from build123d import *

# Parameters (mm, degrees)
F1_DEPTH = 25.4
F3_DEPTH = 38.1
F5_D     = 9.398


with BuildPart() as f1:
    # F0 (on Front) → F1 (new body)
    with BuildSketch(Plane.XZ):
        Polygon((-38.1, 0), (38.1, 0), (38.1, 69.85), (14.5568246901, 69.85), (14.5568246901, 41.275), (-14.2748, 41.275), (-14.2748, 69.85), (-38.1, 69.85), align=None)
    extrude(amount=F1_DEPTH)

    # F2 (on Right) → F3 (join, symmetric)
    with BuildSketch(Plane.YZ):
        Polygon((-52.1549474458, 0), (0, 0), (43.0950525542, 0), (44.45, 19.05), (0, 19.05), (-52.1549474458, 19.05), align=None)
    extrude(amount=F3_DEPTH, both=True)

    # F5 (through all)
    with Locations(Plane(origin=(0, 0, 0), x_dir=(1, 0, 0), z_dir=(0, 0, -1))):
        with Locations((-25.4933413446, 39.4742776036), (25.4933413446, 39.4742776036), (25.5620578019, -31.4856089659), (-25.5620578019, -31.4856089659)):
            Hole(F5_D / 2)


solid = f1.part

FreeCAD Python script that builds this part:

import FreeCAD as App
import Part
import Sketcher

V = App.Vector
Q = App.Units.Quantity


def add_polygon(sketch, points):
    """Adds a closed chain of lines whose ends are joined by coincident constraints."""
    first, n = sketch.GeometryCount, len(points)
    for a, b in zip(points, points[1:] + points[:1]):
        sketch.addGeometry(Part.LineSegment(App.Vector(*a, 0), App.Vector(*b, 0)), False)
    for i in range(n):
        sketch.addConstraint(Sketcher.Constraint("Coincident", first + i, 2, first + (i + 1) % n, 1))

doc = App.newDocument("Part")
body = doc.addObject("PartDesign::Body", "Body")

sketch1 = doc.addObject("Sketcher::SketchObject", "Sketch")
body.addObject(sketch1)
sketch1.AttachmentSupport = (doc.XZ_Plane, [""])
sketch1.MapMode = "FlatFace"
add_polygon(sketch1, [(-38, 0), (38, 0), (38, 70), (15, 70), (15, 41), (-14, 41), (-14, 70), (-38, 70)])
sketch1.addConstraint(Sketcher.Constraint("Horizontal", 0))
sketch1.addConstraint(Sketcher.Constraint("Vertical", 1))
sketch1.addConstraint(Sketcher.Constraint("Horizontal", 2))
sketch1.addConstraint(Sketcher.Constraint("Vertical", 3))
sketch1.addConstraint(Sketcher.Constraint("Horizontal", 4))
sketch1.addConstraint(Sketcher.Constraint("Vertical", 5))
sketch1.addConstraint(Sketcher.Constraint("Horizontal", 6))
sketch1.addConstraint(Sketcher.Constraint("Vertical", 7))
sketch1.addConstraint(Sketcher.Constraint("Symmetric", 0, 2, 7, 2, -1, 1))
sketch1.addConstraint(Sketcher.Constraint("Horizontal", 2, 2, 5, 2))
sketch1.addConstraint(Sketcher.Constraint("DistanceX", 0, 1, 0, 2, Q("3 in")))
sketch1.addConstraint(Sketcher.Constraint("DistanceY", 1, 1, 1, 2, Q("2.75 in")))
sketch1.addConstraint(Sketcher.Constraint("DistanceX", 6, 2, 6, 1, Q("0.938 in")))
sketch1.addConstraint(Sketcher.Constraint("DistanceY", 3, 2, 3, 1, Q("1.125 in")))
sketch1.addConstraint(Sketcher.Constraint("DistanceX", 2, 2, 2, 1, 23.543175))
pad1 = doc.addObject("PartDesign::Pad", "Pad")
body.addObject(pad1)
pad1.Profile = sketch1
pad1.Length = Q("1 in")

sketch2 = doc.addObject("Sketcher::SketchObject", "Sketch001")
body.addObject(sketch2)
sketch2.AttachmentSupport = (doc.YZ_Plane, [""])
sketch2.MapMode = "FlatFace"
add_polygon(sketch2, [(-52, 0), (43, 0), (44, 19), (-52, 19)])
sketch2.addConstraint(Sketcher.Constraint("Horizontal", 0))
sketch2.addConstraint(Sketcher.Constraint("Horizontal", 2))
sketch2.addConstraint(Sketcher.Constraint("Vertical", 3))
sketch2.addConstraint(Sketcher.Constraint("PointOnObject", 0, 2, -1))
sketch2.addConstraint(Sketcher.Constraint("DistanceX", 0, 1, 0, 2, Q("3.75 in")))
sketch2.addConstraint(Sketcher.Constraint("DistanceY", 3, 2, 3, 1, Q("0.75 in")))
sketch2.addConstraint(Sketcher.Constraint("DistanceX", -1, 1, 1, 2, Q("1.75 in")))
sketch2.addConstraint(Sketcher.Constraint("DistanceX", 2, 2, 2, 1, 96.604947))
pad2 = doc.addObject("PartDesign::Pad", "Pad001")
body.addObject(pad2)
pad2.Profile = sketch2
pad2.Length = Q("3 in")
pad2.Midplane = True

sketch3 = doc.addObject("Sketcher::SketchObject", "Sketch002")
body.addObject(sketch3)
sketch3.AttachmentSupport = (doc.XY_Plane, [""])
sketch3.MapMode = "FlatFace"
sketch3.addGeometry(Part.Circle(V(-25.5, -39.5, 0), V(0, 0, 1), 4.7), False)
sketch3.addGeometry(Part.Circle(V(25.5, -39.5, 0), V(0, 0, 1), 4.7), False)
sketch3.addGeometry(Part.Circle(V(25.6, 31.5, 0), V(0, 0, 1), 4.7), False)
sketch3.addGeometry(Part.Circle(V(-25.6, 31.5, 0), V(0, 0, 1), 4.7), False)
sketch3.addConstraint(Sketcher.Constraint("Equal", 0, 1))
sketch3.addConstraint(Sketcher.Constraint("Equal", 1, 2))
sketch3.addConstraint(Sketcher.Constraint("Equal", 2, 3))
sketch3.addConstraint(Sketcher.Constraint("Symmetric", 0, 3, 1, 3, -2))
sketch3.addConstraint(Sketcher.Constraint("Symmetric", 2, 3, 3, 3, -2))
sketch3.addConstraint(Sketcher.Constraint("Diameter", 0, Q("0.37 in")))
sketch3.addConstraint(Sketcher.Constraint("DistanceX", 0, 3, 2, 3, 51.055399))
sketch3.addConstraint(Sketcher.Constraint("DistanceX", 0, 3, -1, 1, 25.493341))
sketch3.addConstraint(Sketcher.Constraint("DistanceY", -1, 1, 2, 3, 31.485609))
sketch3.addConstraint(Sketcher.Constraint("DistanceY", 0, 3, -1, 1, 39.474278))
doc.recompute()
hole = doc.addObject("PartDesign::Hole", "Hole")
body.addObject(hole)
hole.Profile = sketch3
hole.ThreadType = "None"
hole.Diameter = Q("0.37 in")
hole.DepthType = "ThroughAll"
hole.Reversed = True

doc.recompute()
